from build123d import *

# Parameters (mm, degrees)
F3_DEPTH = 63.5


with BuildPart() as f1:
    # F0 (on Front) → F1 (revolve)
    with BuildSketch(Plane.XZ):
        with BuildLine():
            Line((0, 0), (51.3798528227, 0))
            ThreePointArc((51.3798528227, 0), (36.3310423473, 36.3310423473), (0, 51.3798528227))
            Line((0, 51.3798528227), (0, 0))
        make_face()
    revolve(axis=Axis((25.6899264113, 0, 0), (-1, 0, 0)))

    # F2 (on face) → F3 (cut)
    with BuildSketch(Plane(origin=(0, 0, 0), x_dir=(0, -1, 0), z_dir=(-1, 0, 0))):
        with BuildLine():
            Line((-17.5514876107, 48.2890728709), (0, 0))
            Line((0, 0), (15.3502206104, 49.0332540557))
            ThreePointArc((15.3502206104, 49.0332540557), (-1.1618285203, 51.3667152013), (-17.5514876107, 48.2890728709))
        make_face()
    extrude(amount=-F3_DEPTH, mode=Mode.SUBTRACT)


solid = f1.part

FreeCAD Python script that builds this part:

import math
import FreeCAD as App
import Part
import Sketcher
from FreeCAD import Vector
Q = App.Units.Quantity

doc = App.newDocument("Part")
body = doc.addObject("PartDesign::Body", "Body")

# Sketch on XZ plane
sketch1 = body.newObject("Sketcher::SketchObject", "Sketch")
sketch1.AttachmentSupport = (doc.getObject("XZ_Plane"), [""])
sketch1.MapMode = "FlatFace"
sketch1.addGeometry(Part.LineSegment(Vector(0, 0, 0), Vector(51, 0, 0)), False)
sketch1.addGeometry(Part.ArcOfCircle(Part.Circle(Vector(0, 0, 0), Vector(0, 0, 1), 51), math.radians(0), math.radians(90)), False)
sketch1.addGeometry(Part.LineSegment(Vector(0, 51, 0), Vector(0, 0, 0)), False)
sketch1.addConstraint(Sketcher.Constraint("Coincident", 0, 2, 1, 1))
sketch1.addConstraint(Sketcher.Constraint("Coincident", 1, 2, 2, 1))
sketch1.addConstraint(Sketcher.Constraint("Coincident", 2, 2, 0, 1))
sketch1.addConstraint(Sketcher.Constraint("Horizontal", 0))
sketch1.addConstraint(Sketcher.Constraint("Vertical", 2))
sketch1.addConstraint(Sketcher.Constraint("Coincident", 1, 3, -1, 1))
sketch1.addConstraint(Sketcher.Constraint("Coincident", 2, 2, -1, 1))
sketch1.addConstraint(Sketcher.Constraint("Radius", 1, 51.379853))
revolution = body.newObject("PartDesign::Revolution", "Revolution")
revolution.Profile = sketch1
revolution.ReferenceAxis = (sketch1, ["H_Axis"])
revolution.Angle = 360

# Sketch on YZ plane
sketch2 = body.newObject("Sketcher::SketchObject", "Sketch001")
sketch2.AttachmentSupport = (doc.getObject("YZ_Plane"), [""])
sketch2.MapMode = "FlatFace"
sketch2.addGeometry(Part.LineSegment(Vector(18, 48, 0), Vector(0, 0, 0)), False)
sketch2.addGeometry(Part.LineSegment(Vector(0, 0, 0), Vector(-15, 49, 0)), False)
sketch2.addGeometry(Part.ArcOfCircle(Part.Circle(Vector(0, 0, 0), Vector(0, 0, 1), 51), math.radians(70), math.radians(107)), False)
sketch2.addConstraint(Sketcher.Constraint("Coincident", 0, 2, 1, 1))
sketch2.addConstraint(Sketcher.Constraint("Coincident", 1, 2, 2, 2))
sketch2.addConstraint(Sketcher.Constraint("Coincident", 2, 1, 0, 1))
sketch2.addConstraint(Sketcher.Constraint("Coincident", 2, 3, -1, 1))
sketch2.addConstraint(Sketcher.Constraint("Coincident", 0, 2, -1, 1))
sketch2.addConstraint(Sketcher.Constraint("Radius", 2, 51.379853))
sketch2.addConstraint(Sketcher.Constraint("DistanceX", 1, 2, -1, 1, 15.350221))
sketch2.addConstraint(Sketcher.Constraint("DistanceX", 1, 2, 2, 1, 32.901708))
pocket1 = body.newObject("PartDesign::Pocket", "Pocket")
pocket1.Profile = sketch2
pocket1.Length = Q("2.5 in")
pocket1.Reversed = True

doc.recompute()
